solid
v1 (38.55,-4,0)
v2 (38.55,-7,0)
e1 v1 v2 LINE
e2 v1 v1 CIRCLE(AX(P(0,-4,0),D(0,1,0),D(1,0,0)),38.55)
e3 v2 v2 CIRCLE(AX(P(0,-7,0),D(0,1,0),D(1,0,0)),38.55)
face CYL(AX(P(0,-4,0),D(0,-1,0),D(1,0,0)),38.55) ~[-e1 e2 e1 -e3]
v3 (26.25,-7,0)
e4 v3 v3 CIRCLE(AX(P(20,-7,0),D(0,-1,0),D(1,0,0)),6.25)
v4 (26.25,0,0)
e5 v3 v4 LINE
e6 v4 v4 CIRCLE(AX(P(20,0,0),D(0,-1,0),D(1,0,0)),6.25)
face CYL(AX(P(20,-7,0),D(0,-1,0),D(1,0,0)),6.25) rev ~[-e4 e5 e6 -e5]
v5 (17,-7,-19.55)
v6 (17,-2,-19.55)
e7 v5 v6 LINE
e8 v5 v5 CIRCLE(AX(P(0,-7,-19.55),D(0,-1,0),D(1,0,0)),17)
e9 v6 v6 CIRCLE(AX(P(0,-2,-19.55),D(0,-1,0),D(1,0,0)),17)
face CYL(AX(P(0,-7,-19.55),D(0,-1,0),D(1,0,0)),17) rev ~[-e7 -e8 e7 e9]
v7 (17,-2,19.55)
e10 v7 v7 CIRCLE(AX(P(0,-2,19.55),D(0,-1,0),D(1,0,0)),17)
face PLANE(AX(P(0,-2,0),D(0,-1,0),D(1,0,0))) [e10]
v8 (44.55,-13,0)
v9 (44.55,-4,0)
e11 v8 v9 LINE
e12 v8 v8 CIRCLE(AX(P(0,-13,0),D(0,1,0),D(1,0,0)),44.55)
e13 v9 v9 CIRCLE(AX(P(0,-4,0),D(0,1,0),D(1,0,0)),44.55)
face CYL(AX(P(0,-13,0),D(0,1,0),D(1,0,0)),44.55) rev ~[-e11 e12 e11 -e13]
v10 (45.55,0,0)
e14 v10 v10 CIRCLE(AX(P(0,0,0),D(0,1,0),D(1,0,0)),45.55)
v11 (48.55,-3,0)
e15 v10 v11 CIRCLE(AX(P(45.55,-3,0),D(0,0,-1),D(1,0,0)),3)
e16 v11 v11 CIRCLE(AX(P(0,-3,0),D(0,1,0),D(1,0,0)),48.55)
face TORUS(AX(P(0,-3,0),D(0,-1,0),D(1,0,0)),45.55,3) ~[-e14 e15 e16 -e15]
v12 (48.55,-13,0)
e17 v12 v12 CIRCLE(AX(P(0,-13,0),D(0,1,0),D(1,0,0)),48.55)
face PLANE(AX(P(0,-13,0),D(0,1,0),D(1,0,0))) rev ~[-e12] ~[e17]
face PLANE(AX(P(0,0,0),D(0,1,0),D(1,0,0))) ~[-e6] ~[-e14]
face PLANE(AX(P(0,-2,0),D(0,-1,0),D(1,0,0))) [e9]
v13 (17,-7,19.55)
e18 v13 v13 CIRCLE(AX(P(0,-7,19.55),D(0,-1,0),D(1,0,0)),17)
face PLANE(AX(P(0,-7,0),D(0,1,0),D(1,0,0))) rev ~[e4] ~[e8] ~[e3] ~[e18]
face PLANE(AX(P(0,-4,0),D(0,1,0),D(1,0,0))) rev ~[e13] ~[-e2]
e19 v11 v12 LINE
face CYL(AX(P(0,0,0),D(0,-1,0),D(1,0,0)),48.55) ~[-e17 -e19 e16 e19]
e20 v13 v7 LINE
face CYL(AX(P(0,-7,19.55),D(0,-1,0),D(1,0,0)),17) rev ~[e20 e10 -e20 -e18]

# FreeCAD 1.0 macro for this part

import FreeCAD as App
import Part
import Sketcher
from FreeCAD import Vector


def edges_at(feature, points):
    """Names of the edges that pass closest to the given points."""
    edges = feature.Shape.Edges
    near = lambda p: min(range(len(edges)), key=lambda i: edges[i].distToShape(Part.Vertex(*p))[0])
    return sorted({f"Edge{near(p) + 1}" for p in points})

doc = App.newDocument("Part")
body = doc.addObject("PartDesign::Body", "Body")

sketch1 = doc.addObject("Sketcher::SketchObject", "Sketch")
body.addObject(sketch1)
sketch1.AttachmentSupport = (doc.XY_Plane, [""])
sketch1.MapMode = "FlatFace"
sketch1.addGeometry([
    Part.LineSegment(Vector(48.5, 0, 0), Vector(0, 0, 0)),
    Part.LineSegment(Vector(0, 0, 0), Vector(0, -7, 0)),
    Part.LineSegment(Vector(0, -7, 0), Vector(38.5, -7, 0)),
    Part.LineSegment(Vector(38.5, -7, 0), Vector(38.5, -4, 0)),
    Part.LineSegment(Vector(38.5, -4, 0), Vector(44.5, -4, 0)),
    Part.LineSegment(Vector(44.5, -4, 0), Vector(44.5, -13, 0)),
    Part.LineSegment(Vector(44.5, -13, 0), Vector(48.5, -13, 0)),
    Part.LineSegment(Vector(48.5, -13, 0), Vector(48.5, 0, 0)),
], False)
sketch1.addConstraint([
    Sketcher.Constraint("Coincident", 0, 2, 1, 1),
    Sketcher.Constraint("Coincident", 1, 2, 2, 1),
    Sketcher.Constraint("Coincident", 2, 2, 3, 1),
    Sketcher.Constraint("Coincident", 3, 2, 4, 1),
    Sketcher.Constraint("Coincident", 4, 2, 5, 1),
    Sketcher.Constraint("Coincident", 5, 2, 6, 1),
    Sketcher.Constraint("Coincident", 6, 2, 7, 1),
    Sketcher.Constraint("Coincident", 7, 2, 0, 1),
    Sketcher.Constraint("Horizontal", 0),
    Sketcher.Constraint("Vertical", 1),
    Sketcher.Constraint("Horizontal", 2),
    Sketcher.Constraint("Vertical", 3),
    Sketcher.Constraint("Horizontal", 4),
    Sketcher.Constraint("Vertical", 5),
    Sketcher.Constraint("Horizontal", 6),
    Sketcher.Constraint("Vertical", 7),
    Sketcher.Constraint("Coincident", 0, 2, -1, 1),
    Sketcher.Constraint("DistanceX", 4, 1, 4, 2, 6.0),
    Sketcher.Constraint("DistanceX", 6, 1, 6, 2, 4.0),
    Sketcher.Constraint("DistanceY", 1, 2, 1, 1, 7.0),
    Sketcher.Constraint("DistanceY", 7, 1, 7, 2, 13.0),
    Sketcher.Constraint("DistanceY", 3, 2, -1, 1, 4.0),
    Sketcher.Constraint("DistanceX", 0, 2, 0, 1, 48.55),
])
revolution = doc.addObject("PartDesign::Revolution", "Revolution")
body.addObject(revolution)
revolution.Profile = sketch1
revolution.ReferenceAxis = (sketch1, ["V_Axis"])
revolution.Angle = 360
doc.recompute()

fillet = doc.addObject("PartDesign::Fillet", "Fillet")
body.addObject(fillet)
fillet.Base = (revolution, edges_at(revolution, [(-48.55, 0, 0)]))
fillet.Radius = 3

sketch2 = doc.addObject("Sketcher::SketchObject", "Sketch001")
body.addObject(sketch2)
sketch2.AttachmentSupport = (doc.XZ_Plane, [""])
sketch2.MapMode = "FlatFace"
sketch2.AttachmentOffset = App.Placement(Vector(0, 0, 7), App.Rotation())
sketch2.addGeometry([
    Part.Circle(Vector(0, -20, 0), Vector(0, 0, 1), 17),
    Part.Circle(Vector(0, 20, 0), Vector(0, 0, 1), 17),
], False)
sketch2.addConstraint([
    Sketcher.Constraint("Equal", 0, 1),
    Sketcher.Constraint("Symmetric", 0, 3, 1, 3, -1, 1),
    Sketcher.Constraint("PointOnObject", 0, 3, -2),
    Sketcher.Constraint("Diameter", 0, 34.0),
    Sketcher.Constraint("DistanceY", 0, 3, -1, 1, 19.55),
])
pocket1 = doc.addObject("PartDesign::Pocket", "Pocket")
body.addObject(pocket1)
pocket1.Profile = sketch2
pocket1.Length = 5

sketch3 = doc.addObject("Sketcher::SketchObject", "Sketch002")
body.addObject(sketch3)
sketch3.AttachmentSupport = (doc.XZ_Plane, [""])
sketch3.MapMode = "FlatFace"
sketch3.AttachmentOffset = App.Placement(Vector(0, 0, 7), App.Rotation())
sketch3.addGeometry(Part.Circle(Vector(20, 0, 0), Vector(0, 0, 1), 6), False)
sketch3.addConstraint([
    Sketcher.Constraint("PointOnObject", 0, 3, -1),
    Sketcher.Constraint("Diameter", 0, 12.5),
    Sketcher.Constraint("DistanceX", -1, 1, 0, 3, 20.0),
])
pocket2 = doc.addObject("PartDesign::Pocket", "Pocket001")
body.addObject(pocket2)
pocket2.Profile = sketch3
pocket2.Type = "ThroughAll"

doc.recompute()
